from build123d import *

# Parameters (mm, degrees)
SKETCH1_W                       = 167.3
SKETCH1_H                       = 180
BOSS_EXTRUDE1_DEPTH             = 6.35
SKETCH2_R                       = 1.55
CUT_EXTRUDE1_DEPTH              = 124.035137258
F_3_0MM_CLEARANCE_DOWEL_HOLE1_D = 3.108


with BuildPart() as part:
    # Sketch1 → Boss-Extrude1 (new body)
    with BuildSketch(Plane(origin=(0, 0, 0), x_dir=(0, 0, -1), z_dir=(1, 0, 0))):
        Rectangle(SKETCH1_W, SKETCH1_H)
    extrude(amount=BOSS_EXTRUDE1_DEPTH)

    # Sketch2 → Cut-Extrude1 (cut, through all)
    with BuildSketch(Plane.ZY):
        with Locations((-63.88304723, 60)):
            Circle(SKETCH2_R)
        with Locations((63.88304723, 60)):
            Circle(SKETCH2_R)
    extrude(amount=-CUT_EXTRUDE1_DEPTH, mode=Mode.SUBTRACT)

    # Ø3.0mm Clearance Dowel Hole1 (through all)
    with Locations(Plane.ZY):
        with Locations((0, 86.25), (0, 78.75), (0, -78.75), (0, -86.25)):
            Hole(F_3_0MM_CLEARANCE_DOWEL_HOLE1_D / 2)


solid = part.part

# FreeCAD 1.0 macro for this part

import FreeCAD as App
import Part
import Sketcher
from FreeCAD import Vector


def add_polygon(sketch, points):
    """Adds a closed chain of lines whose ends are joined by coincident constraints."""
    first, n = sketch.GeometryCount, len(points)
    for a, b in zip(points, points[1:] + points[:1]):
        sketch.addGeometry(Part.LineSegment(App.Vector(*a, 0), App.Vector(*b, 0)), False)
    for i in range(n):
        sketch.addConstraint(Sketcher.Constraint("Coincident", first + i, 2, first + (i + 1) % n, 1))

doc = App.newDocument("Part")
body = doc.addObject("PartDesign::Body", "Body")

sketch1 = body.newObject("Sketcher::SketchObject", "Sketch")
sketch1.AttachmentSupport = (doc.getObject("YZ_Plane"), [""])
sketch1.MapMode = "FlatFace"
add_polygon(sketch1, [(90, 83.65), (-90, 83.65), (-90, -83.65), (90, -83.65)])
sketch1.addConstraint([
    Sketcher.Constraint("Horizontal", 0),
    Sketcher.Constraint("Vertical", 1),
    Sketcher.Constraint("Horizontal", 2),
    Sketcher.Constraint("Vertical", 3),
    Sketcher.Constraint("Symmetric", 0, 2, 2, 2, -1, 1),
    Sketcher.Constraint("DistanceX", 0, 2, 0, 1, 180.0),
    Sketcher.Constraint("DistanceY", 1, 2, 1, 1, 167.3),
])
pad1 = body.newObject("PartDesign::Pad", "Pad")
pad1.Profile = sketch1
pad1.Length = 6.35

sketch2 = body.newObject("Sketcher::SketchObject", "Sketch001")
sketch2.AttachmentSupport = (doc.getObject("YZ_Plane"), [""])
sketch2.MapMode = "FlatFace"
sketch2.addGeometry([
    Part.Circle(Vector(60, -63.883047, 0), Vector(0, 0, 1), 1.55),
    Part.Circle(Vector(60, 63.883047, 0), Vector(0, 0, 1), 1.55),
], False)
sketch2.addConstraint([
    Sketcher.Constraint("Equal", 0, 1),
    Sketcher.Constraint("Symmetric", 0, 3, 1, 3, -1),
    Sketcher.Constraint("Diameter", 0, 3.1),
    Sketcher.Constraint("DistanceX", -1, 1, 0, 3, 60.0),
    Sketcher.Constraint("DistanceY", 0, 3, -1, 1, 63.883047),
])
pocket1 = body.newObject("PartDesign::Pocket", "Pocket")
pocket1.Profile = sketch2
pocket1.Type = "ThroughAll"
pocket1.Reversed = True

sketch3 = body.newObject("Sketcher::SketchObject", "Sketch002")
sketch3.AttachmentSupport = (doc.getObject("YZ_Plane"), [""])
sketch3.MapMode = "FlatFace"
sketch3.addGeometry([
    Part.Circle(Vector(86.25, 0, 0), Vector(0, 0, 1), 1.554),
    Part.Circle(Vector(78.75, 0, 0), Vector(0, 0, 1), 1.554),
    Part.Circle(Vector(-78.75, 0, 0), Vector(0, 0, 1), 1.554),
    Part.Circle(Vector(-86.25, 0, 0), Vector(0, 0, 1), 1.554),
], False)
sketch3.addConstraint([
    Sketcher.Constraint("Equal", 0, 1),
    Sketcher.Constraint("Equal", 1, 2),
    Sketcher.Constraint("Equal", 2, 3),
    Sketcher.Constraint("Symmetric", 1, 3, 2, 3, -1, 1),
    Sketcher.Constraint("Symmetric", 0, 3, 3, 3, -1, 1),
    Sketcher.Constraint("PointOnObject", 0, 3, -1),
    Sketcher.Constraint("PointOnObject", 1, 3, -1),
    Sketcher.Constraint("Diameter", 0, 3.108),
    Sketcher.Constraint("DistanceX", 2, 3, 0, 3, 165.0),
    Sketcher.Constraint("DistanceX", 1, 3, 0, 3, 7.5),
])
doc.recompute()
hole = body.newObject("PartDesign::Hole", "Hole")
hole.Profile = sketch3
hole.ThreadType = "None"
hole.Diameter = 3.108
hole.DepthType = "ThroughAll"
hole.Reversed = True

doc.recompute()
